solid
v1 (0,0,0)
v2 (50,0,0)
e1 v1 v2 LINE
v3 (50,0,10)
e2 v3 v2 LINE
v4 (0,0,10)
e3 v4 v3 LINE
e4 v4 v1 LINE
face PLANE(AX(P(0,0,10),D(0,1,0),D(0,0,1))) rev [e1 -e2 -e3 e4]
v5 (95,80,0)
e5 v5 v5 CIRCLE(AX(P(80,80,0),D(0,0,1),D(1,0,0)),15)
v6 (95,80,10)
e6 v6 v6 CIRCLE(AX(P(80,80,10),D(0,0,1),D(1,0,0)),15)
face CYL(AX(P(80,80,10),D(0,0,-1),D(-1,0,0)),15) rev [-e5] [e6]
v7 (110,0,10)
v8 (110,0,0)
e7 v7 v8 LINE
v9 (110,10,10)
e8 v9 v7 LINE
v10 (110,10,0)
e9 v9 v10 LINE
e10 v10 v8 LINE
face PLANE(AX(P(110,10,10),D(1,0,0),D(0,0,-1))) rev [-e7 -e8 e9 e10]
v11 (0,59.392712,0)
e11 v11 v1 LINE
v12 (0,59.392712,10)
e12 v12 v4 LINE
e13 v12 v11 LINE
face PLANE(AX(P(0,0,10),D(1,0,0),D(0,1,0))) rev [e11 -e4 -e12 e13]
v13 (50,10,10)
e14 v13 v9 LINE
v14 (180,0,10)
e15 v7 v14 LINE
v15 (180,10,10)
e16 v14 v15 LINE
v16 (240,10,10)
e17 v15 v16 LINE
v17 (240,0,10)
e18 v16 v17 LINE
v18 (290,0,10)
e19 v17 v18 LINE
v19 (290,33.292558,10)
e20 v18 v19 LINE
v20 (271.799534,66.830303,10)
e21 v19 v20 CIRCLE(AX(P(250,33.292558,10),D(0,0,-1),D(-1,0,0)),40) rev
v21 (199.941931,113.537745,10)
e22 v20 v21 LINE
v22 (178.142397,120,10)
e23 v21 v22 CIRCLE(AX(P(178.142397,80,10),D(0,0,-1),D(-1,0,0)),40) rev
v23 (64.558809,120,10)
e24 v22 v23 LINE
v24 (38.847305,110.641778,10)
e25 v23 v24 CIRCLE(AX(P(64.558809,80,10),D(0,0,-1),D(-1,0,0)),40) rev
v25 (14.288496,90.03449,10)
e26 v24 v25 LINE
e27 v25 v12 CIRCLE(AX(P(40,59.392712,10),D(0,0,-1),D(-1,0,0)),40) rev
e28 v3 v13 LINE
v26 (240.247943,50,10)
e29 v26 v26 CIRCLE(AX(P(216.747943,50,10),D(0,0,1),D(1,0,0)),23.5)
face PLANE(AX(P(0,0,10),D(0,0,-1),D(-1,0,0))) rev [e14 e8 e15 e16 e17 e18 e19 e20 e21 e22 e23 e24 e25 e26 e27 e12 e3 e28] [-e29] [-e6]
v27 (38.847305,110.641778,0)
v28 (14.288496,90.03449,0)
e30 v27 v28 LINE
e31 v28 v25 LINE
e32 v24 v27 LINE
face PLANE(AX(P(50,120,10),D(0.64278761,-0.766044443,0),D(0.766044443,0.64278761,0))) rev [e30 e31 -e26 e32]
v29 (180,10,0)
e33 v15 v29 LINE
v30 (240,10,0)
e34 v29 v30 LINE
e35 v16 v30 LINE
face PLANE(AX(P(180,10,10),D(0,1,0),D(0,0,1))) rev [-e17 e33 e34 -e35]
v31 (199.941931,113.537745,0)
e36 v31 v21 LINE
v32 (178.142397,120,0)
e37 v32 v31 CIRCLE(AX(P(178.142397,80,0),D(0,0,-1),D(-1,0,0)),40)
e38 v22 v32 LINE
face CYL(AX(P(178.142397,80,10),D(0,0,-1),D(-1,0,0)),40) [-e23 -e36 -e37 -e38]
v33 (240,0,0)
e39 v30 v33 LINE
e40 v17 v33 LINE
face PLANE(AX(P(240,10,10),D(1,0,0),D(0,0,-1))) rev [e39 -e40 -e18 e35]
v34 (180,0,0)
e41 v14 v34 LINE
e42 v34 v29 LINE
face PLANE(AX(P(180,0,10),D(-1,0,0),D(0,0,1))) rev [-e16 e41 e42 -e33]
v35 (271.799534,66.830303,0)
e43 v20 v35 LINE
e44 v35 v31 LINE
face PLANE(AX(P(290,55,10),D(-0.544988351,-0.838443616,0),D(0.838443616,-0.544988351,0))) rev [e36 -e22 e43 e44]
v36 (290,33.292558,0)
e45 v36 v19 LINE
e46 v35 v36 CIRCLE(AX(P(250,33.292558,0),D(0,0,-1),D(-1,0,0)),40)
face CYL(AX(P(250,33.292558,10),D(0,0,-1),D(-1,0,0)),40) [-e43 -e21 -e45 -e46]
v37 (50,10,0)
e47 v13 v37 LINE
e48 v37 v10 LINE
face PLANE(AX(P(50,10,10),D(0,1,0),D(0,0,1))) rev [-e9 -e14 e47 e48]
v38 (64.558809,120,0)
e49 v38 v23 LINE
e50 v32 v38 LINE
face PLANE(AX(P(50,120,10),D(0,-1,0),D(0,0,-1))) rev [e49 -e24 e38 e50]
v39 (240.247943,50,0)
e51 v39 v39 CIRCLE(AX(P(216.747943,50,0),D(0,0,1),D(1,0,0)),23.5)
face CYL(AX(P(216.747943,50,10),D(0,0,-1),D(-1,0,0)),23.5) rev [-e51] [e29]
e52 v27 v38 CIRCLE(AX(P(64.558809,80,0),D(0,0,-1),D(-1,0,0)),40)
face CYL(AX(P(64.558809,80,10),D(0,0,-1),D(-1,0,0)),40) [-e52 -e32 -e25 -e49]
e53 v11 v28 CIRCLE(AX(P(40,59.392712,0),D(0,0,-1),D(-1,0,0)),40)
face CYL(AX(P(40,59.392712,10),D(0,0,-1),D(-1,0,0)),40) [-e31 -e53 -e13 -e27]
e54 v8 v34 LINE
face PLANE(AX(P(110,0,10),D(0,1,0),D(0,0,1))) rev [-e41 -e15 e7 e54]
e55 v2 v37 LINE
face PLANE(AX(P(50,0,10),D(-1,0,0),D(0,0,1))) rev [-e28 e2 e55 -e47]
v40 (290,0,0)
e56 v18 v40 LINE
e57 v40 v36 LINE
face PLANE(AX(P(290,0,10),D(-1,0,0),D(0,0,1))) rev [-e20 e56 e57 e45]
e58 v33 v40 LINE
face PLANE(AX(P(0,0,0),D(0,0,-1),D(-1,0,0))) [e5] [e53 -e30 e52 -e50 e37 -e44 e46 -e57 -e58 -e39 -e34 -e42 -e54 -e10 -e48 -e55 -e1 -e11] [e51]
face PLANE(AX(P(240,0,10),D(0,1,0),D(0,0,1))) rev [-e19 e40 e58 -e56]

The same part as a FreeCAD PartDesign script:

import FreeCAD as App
import Part
import Sketcher
Q = App.Units.Quantity


def edges_at(feature, points):
    """Names of the edges that pass closest to the given points."""
    edges = feature.Shape.Edges
    near = lambda p: min(range(len(edges)), key=lambda i: edges[i].distToShape(Part.Vertex(*p))[0])
    return sorted({f"Edge{near(p) + 1}" for p in points})

doc = App.newDocument("Part")
body = doc.addObject("PartDesign::Body", "Body")

# Sketch on XY plane
sketch1 = body.newObject("Sketcher::SketchObject", "Sketch")
sketch1.AttachmentSupport = (doc.getObject("XY_Plane"), [""])
sketch1.MapMode = "FlatFace"
sketch1.addGeometry(Part.LineSegment(App.Vector(290, 0, 0), App.Vector(290, 55, 0)), False)
sketch1.addGeometry(Part.LineSegment(App.Vector(290, 55, 0), App.Vector(190, 120, 0)), False)
sketch1.addGeometry(Part.LineSegment(App.Vector(190, 120, 0), App.Vector(50, 120, 0)), False)
sketch1.addGeometry(Part.LineSegment(App.Vector(50, 120, 0), App.Vector(0, 78.045018, 0)), False)
sketch1.addGeometry(Part.LineSegment(App.Vector(0, 78.045018, 0), App.Vector(0, 0, 0)), False)
sketch1.addGeometry(Part.LineSegment(App.Vector(0, 0, 0), App.Vector(50, 0, 0)), False)
sketch1.addGeometry(Part.LineSegment(App.Vector(50, 0, 0), App.Vector(50, 10, 0)), False)
sketch1.addGeometry(Part.LineSegment(App.Vector(50, 10, 0), App.Vector(110, 10, 0)), False)
sketch1.addGeometry(Part.LineSegment(App.Vector(110, 10, 0), App.Vector(110, 0, 0)), False)
sketch1.addGeometry(Part.LineSegment(App.Vector(110, 0, 0), App.Vector(180, 0, 0)), False)
sketch1.addGeometry(Part.LineSegment(App.Vector(180, 0, 0), App.Vector(180, 10, 0)), False)
sketch1.addGeometry(Part.LineSegment(App.Vector(180, 10, 0), App.Vector(240, 10, 0)), False)
sketch1.addGeometry(Part.LineSegment(App.Vector(240, 10, 0), App.Vector(240, 0, 0)), False)
sketch1.addGeometry(Part.LineSegment(App.Vector(240, 0, 0), App.Vector(290, 0, 0)), False)
sketch1.addGeometry(Part.Circle(App.Vector(216.747943, 50, 0), App.Vector(0, 0, 1), 23.5), False)
sketch1.addGeometry(Part.Circle(App.Vector(80, 80, 0), App.Vector(0, 0, 1), 15), False)
sketch1.addConstraint(Sketcher.Constraint("Coincident", 0, 2, 1, 1))
sketch1.addConstraint(Sketcher.Constraint("Coincident", 1, 2, 2, 1))
sketch1.addConstraint(Sketcher.Constraint("Coincident", 2, 2, 3, 1))
sketch1.addConstraint(Sketcher.Constraint("Coincident", 3, 2, 4, 1))
sketch1.addConstraint(Sketcher.Constraint("Coincident", 4, 2, 5, 1))
sketch1.addConstraint(Sketcher.Constraint("Coincident", 5, 2, 6, 1))
sketch1.addConstraint(Sketcher.Constraint("Coincident", 6, 2, 7, 1))
sketch1.addConstraint(Sketcher.Constraint("Coincident", 7, 2, 8, 1))
sketch1.addConstraint(Sketcher.Constraint("Coincident", 8, 2, 9, 1))
sketch1.addConstraint(Sketcher.Constraint("Coincident", 9, 2, 10, 1))
sketch1.addConstraint(Sketcher.Constraint("Coincident", 10, 2, 11, 1))
sketch1.addConstraint(Sketcher.Constraint("Coincident", 11, 2, 12, 1))
sketch1.addConstraint(Sketcher.Constraint("Coincident", 12, 2, 13, 1))
sketch1.addConstraint(Sketcher.Constraint("Coincident", 13, 2, 0, 1))
sketch1.addConstraint(Sketcher.Constraint("Vertical", 0))
sketch1.addConstraint(Sketcher.Constraint("Horizontal", 2))
sketch1.addConstraint(Sketcher.Constraint("Vertical", 4))
sketch1.addConstraint(Sketcher.Constraint("Horizontal", 5))
sketch1.addConstraint(Sketcher.Constraint("Vertical", 6))
sketch1.addConstraint(Sketcher.Constraint("Horizontal", 7))
sketch1.addConstraint(Sketcher.Constraint("Vertical", 8))
sketch1.addConstraint(Sketcher.Constraint("Horizontal", 9))
sketch1.addConstraint(Sketcher.Constraint("Vertical", 10))
sketch1.addConstraint(Sketcher.Constraint("Horizontal", 11))
sketch1.addConstraint(Sketcher.Constraint("Vertical", 12))
sketch1.addConstraint(Sketcher.Constraint("Horizontal", 13))
sketch1.addConstraint(Sketcher.Constraint("Coincident", 4, 2, -1, 1))
sketch1.addConstraint(Sketcher.Constraint("PointOnObject", 8, 2, -1))
sketch1.addConstraint(Sketcher.Constraint("PointOnObject", 12, 2, -1))
sketch1.addConstraint(Sketcher.Constraint("Horizontal", 7, 2, 10, 2))
sketch1.addConstraint(Sketcher.Constraint("Vertical", 2, 2, 5, 2))
sketch1.addConstraint(Sketcher.Constraint("Equal", 7, 11))
sketch1.addConstraint(Sketcher.Constraint("Equal", 5, 13))
sketch1.addConstraint(Sketcher.Constraint("Diameter", 14, Q("47 mm")))
sketch1.addConstraint(Sketcher.Constraint("Diameter", 15, Q("30 mm")))
sketch1.addConstraint(Sketcher.Constraint("DistanceX", 2, 2, 2, 1, Q("140 mm")))
sketch1.addConstraint(Sketcher.Constraint("DistanceX", 5, 1, 5, 2, Q("50 mm")))
sketch1.addConstraint(Sketcher.Constraint("DistanceX", 7, 1, 7, 2, Q("60 mm")))
sketch1.addConstraint(Sketcher.Constraint("DistanceX", 9, 1, 9, 2, Q("70 mm")))
sketch1.addConstraint(Sketcher.Constraint("DistanceY", 0, 1, 0, 2, Q("55 mm")))
sketch1.addConstraint(Sketcher.Constraint("DistanceY", 6, 1, 6, 2, Q("10 mm")))
sketch1.addConstraint(Sketcher.Constraint("Angle", 3, Q("-140 deg")))
sketch1.addConstraint(Sketcher.Constraint("DistanceY", -1, 1, 14, 3, Q("50 mm")))
sketch1.addConstraint(Sketcher.Constraint("DistanceX", -1, 1, 15, 3, Q("80 mm")))
sketch1.addConstraint(Sketcher.Constraint("DistanceY", -1, 1, 15, 3, Q("80 mm")))
sketch1.addConstraint(Sketcher.Constraint("DistanceY", -1, 1, 1, 2, Q("120 mm")))
sketch1.addConstraint(Sketcher.Constraint("DistanceX", -1, 1, 14, 3, Q("216.747943 mm")))
pad1 = body.newObject("PartDesign::Pad", "Pad")
pad1.Profile = sketch1
pad1.Length = 10
doc.recompute()

fillet = body.newObject("PartDesign::Fillet", "Fillet")
fillet.Base = (pad1, edges_at(pad1, [
    (0, 78.045, 5),
    (50, 120, 5),
    (190, 120, 5),
    (290, 55, 5),
]))
fillet.Radius = 40

doc.recompute()
